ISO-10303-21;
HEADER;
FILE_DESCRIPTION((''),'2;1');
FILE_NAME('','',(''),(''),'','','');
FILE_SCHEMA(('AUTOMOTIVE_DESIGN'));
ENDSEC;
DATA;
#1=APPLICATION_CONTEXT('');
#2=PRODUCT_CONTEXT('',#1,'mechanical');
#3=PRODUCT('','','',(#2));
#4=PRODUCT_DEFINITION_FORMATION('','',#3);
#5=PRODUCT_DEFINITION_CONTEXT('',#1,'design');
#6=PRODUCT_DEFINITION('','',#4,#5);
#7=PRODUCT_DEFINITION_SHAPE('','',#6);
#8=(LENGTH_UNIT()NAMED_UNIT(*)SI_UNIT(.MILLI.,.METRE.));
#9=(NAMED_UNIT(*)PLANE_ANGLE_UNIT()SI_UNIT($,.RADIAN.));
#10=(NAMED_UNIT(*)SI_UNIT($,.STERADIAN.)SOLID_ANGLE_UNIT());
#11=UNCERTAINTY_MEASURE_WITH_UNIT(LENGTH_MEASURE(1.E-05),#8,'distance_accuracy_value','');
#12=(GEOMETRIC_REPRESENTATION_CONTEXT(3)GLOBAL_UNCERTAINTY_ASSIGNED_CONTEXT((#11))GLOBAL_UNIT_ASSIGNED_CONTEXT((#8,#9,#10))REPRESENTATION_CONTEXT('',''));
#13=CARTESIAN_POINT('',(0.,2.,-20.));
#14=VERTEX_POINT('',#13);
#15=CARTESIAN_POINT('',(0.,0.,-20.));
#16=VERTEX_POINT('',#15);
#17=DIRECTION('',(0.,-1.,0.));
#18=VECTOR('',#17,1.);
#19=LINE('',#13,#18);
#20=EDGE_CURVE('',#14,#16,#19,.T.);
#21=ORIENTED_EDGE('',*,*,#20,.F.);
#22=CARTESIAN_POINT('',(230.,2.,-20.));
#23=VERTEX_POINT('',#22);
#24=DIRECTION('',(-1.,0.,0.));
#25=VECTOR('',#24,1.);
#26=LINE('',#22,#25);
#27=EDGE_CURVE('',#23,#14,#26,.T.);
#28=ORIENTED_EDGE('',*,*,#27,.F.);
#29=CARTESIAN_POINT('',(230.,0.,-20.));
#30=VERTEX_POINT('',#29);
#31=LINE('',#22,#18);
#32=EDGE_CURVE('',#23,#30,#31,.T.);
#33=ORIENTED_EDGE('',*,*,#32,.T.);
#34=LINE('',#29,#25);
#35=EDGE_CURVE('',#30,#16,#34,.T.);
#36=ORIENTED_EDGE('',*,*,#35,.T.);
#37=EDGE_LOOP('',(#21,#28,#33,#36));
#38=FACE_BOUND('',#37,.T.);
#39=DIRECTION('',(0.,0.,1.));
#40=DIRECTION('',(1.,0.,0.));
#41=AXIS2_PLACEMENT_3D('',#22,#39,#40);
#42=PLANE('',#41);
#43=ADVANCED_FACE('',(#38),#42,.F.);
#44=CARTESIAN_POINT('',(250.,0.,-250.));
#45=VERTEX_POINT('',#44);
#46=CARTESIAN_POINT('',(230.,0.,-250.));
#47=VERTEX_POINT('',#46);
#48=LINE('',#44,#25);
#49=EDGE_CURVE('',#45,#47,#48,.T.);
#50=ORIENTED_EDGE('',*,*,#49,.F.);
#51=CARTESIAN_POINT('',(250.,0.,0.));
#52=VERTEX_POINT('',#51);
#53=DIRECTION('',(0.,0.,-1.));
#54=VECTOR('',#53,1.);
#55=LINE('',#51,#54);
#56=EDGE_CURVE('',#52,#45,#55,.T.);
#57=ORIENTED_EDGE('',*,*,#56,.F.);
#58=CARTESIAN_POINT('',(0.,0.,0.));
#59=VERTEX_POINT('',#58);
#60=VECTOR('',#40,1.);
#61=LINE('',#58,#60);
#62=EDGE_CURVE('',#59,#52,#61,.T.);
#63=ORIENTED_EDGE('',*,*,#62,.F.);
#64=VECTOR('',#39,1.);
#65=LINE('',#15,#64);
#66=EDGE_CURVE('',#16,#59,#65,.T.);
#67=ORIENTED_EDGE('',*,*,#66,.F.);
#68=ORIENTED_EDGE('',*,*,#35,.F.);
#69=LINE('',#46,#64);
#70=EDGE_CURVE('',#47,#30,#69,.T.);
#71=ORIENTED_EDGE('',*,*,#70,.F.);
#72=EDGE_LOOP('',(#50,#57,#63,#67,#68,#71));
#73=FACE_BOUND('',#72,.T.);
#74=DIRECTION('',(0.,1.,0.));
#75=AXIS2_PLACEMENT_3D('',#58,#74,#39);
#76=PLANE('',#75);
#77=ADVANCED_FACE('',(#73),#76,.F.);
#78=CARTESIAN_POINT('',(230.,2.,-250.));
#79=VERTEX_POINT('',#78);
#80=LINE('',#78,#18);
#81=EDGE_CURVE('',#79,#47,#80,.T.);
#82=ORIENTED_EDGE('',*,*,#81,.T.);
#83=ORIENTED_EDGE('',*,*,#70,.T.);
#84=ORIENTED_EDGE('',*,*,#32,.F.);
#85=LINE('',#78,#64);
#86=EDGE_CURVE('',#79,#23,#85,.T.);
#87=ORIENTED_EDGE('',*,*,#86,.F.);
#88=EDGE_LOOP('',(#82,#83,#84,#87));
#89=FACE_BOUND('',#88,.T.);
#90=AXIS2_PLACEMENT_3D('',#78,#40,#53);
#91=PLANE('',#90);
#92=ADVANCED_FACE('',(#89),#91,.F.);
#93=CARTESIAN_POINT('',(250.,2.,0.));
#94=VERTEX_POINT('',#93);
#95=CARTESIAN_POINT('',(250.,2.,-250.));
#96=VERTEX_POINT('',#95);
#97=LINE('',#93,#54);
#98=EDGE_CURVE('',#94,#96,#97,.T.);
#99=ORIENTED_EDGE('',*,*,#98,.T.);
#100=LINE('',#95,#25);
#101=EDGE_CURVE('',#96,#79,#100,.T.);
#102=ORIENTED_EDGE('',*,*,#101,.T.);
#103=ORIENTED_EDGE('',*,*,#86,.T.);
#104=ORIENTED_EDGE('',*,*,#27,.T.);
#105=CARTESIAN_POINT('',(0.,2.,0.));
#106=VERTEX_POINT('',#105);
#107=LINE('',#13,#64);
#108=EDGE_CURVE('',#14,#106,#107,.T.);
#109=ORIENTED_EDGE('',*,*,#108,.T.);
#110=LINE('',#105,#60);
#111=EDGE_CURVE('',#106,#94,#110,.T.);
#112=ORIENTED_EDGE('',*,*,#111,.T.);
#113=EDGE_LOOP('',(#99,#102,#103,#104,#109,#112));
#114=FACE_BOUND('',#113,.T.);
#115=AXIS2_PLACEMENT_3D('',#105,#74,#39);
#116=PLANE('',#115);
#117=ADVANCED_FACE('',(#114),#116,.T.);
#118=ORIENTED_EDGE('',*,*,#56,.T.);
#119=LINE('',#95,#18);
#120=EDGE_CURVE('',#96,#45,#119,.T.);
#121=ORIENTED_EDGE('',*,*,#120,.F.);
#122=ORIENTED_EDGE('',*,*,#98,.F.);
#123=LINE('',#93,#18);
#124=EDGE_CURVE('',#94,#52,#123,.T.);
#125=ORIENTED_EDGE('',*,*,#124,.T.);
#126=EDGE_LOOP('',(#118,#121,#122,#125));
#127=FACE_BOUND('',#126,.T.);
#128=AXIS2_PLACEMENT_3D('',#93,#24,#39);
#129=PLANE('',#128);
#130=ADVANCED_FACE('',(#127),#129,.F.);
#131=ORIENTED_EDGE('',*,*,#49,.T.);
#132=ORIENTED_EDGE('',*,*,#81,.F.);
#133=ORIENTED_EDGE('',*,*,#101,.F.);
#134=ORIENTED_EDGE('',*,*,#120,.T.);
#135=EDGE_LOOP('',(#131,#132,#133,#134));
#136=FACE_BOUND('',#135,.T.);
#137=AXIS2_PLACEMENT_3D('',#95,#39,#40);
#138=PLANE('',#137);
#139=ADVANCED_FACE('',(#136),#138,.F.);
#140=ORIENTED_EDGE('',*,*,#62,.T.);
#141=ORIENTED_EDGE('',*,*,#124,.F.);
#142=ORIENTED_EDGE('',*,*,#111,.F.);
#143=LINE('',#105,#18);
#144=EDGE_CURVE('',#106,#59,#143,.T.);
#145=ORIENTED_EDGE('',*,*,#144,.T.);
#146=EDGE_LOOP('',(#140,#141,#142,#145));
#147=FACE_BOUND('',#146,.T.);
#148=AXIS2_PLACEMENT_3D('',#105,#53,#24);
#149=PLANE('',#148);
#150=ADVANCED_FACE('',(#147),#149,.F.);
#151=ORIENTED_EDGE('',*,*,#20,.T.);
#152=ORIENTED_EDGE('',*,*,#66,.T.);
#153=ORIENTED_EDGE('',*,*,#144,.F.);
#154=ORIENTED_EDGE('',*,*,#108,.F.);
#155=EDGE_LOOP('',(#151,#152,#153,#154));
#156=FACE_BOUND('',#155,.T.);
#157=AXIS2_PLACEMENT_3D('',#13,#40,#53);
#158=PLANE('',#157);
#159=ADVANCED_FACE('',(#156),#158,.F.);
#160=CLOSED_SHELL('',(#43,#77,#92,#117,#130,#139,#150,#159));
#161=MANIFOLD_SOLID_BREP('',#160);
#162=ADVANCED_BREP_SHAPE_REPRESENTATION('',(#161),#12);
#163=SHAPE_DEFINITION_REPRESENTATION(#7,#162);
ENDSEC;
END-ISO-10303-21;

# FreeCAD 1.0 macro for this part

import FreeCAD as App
import Part
import Sketcher

V = App.Vector

doc = App.newDocument("Part")
body = doc.addObject("PartDesign::Body", "Body")

# Sketch on XZ plane
sketch1 = doc.addObject("Sketcher::SketchObject", "Sketch")
body.addObject(sketch1)
sketch1.AttachmentSupport = (doc.XZ_Plane, [""])
sketch1.MapMode = "FlatFace"
sketch1.addGeometry(Part.LineSegment(V(0, 0, 0), V(250, 0, 0)), False)
sketch1.addGeometry(Part.LineSegment(V(250, 0, 0), V(250, -250, 0)), False)
sketch1.addGeometry(Part.LineSegment(V(250, -250, 0), V(230, -250, 0)), False)
sketch1.addGeometry(Part.LineSegment(V(230, -250, 0), V(230, -20, 0)), False)
sketch1.addGeometry(Part.LineSegment(V(230, -20, 0), V(0, -20, 0)), False)
sketch1.addGeometry(Part.LineSegment(V(0, -20, 0), V(0, 0, 0)), False)
sketch1.addConstraint(Sketcher.Constraint("Coincident", 0, 2, 1, 1))
sketch1.addConstraint(Sketcher.Constraint("Coincident", 1, 2, 2, 1))
sketch1.addConstraint(Sketcher.Constraint("Coincident", 2, 2, 3, 1))
sketch1.addConstraint(Sketcher.Constraint("Coincident", 3, 2, 4, 1))
sketch1.addConstraint(Sketcher.Constraint("Coincident", 4, 2, 5, 1))
sketch1.addConstraint(Sketcher.Constraint("Coincident", 5, 2, 0, 1))
sketch1.addConstraint(Sketcher.Constraint("Horizontal", 0))
sketch1.addConstraint(Sketcher.Constraint("Vertical", 1))
sketch1.addConstraint(Sketcher.Constraint("Horizontal", 2))
sketch1.addConstraint(Sketcher.Constraint("Vertical", 3))
sketch1.addConstraint(Sketcher.Constraint("Horizontal", 4))
sketch1.addConstraint(Sketcher.Constraint("Vertical", 5))
sketch1.addConstraint(Sketcher.Constraint("Coincident", 5, 2, -1, 1))
sketch1.addConstraint(Sketcher.Constraint("Equal", 0, 1))
sketch1.addConstraint(Sketcher.Constraint("Equal", 4, 3))
sketch1.addConstraint(Sketcher.Constraint("DistanceX", 0, 1, 0, 2, 250.0))
sketch1.addConstraint(Sketcher.Constraint("DistanceX", 2, 2, 2, 1, 20.0))
pad1 = doc.addObject("PartDesign::Pad", "Pad")
body.addObject(pad1)
pad1.Profile = sketch1
pad1.Length = 2
pad1.Reversed = True

doc.recompute()
